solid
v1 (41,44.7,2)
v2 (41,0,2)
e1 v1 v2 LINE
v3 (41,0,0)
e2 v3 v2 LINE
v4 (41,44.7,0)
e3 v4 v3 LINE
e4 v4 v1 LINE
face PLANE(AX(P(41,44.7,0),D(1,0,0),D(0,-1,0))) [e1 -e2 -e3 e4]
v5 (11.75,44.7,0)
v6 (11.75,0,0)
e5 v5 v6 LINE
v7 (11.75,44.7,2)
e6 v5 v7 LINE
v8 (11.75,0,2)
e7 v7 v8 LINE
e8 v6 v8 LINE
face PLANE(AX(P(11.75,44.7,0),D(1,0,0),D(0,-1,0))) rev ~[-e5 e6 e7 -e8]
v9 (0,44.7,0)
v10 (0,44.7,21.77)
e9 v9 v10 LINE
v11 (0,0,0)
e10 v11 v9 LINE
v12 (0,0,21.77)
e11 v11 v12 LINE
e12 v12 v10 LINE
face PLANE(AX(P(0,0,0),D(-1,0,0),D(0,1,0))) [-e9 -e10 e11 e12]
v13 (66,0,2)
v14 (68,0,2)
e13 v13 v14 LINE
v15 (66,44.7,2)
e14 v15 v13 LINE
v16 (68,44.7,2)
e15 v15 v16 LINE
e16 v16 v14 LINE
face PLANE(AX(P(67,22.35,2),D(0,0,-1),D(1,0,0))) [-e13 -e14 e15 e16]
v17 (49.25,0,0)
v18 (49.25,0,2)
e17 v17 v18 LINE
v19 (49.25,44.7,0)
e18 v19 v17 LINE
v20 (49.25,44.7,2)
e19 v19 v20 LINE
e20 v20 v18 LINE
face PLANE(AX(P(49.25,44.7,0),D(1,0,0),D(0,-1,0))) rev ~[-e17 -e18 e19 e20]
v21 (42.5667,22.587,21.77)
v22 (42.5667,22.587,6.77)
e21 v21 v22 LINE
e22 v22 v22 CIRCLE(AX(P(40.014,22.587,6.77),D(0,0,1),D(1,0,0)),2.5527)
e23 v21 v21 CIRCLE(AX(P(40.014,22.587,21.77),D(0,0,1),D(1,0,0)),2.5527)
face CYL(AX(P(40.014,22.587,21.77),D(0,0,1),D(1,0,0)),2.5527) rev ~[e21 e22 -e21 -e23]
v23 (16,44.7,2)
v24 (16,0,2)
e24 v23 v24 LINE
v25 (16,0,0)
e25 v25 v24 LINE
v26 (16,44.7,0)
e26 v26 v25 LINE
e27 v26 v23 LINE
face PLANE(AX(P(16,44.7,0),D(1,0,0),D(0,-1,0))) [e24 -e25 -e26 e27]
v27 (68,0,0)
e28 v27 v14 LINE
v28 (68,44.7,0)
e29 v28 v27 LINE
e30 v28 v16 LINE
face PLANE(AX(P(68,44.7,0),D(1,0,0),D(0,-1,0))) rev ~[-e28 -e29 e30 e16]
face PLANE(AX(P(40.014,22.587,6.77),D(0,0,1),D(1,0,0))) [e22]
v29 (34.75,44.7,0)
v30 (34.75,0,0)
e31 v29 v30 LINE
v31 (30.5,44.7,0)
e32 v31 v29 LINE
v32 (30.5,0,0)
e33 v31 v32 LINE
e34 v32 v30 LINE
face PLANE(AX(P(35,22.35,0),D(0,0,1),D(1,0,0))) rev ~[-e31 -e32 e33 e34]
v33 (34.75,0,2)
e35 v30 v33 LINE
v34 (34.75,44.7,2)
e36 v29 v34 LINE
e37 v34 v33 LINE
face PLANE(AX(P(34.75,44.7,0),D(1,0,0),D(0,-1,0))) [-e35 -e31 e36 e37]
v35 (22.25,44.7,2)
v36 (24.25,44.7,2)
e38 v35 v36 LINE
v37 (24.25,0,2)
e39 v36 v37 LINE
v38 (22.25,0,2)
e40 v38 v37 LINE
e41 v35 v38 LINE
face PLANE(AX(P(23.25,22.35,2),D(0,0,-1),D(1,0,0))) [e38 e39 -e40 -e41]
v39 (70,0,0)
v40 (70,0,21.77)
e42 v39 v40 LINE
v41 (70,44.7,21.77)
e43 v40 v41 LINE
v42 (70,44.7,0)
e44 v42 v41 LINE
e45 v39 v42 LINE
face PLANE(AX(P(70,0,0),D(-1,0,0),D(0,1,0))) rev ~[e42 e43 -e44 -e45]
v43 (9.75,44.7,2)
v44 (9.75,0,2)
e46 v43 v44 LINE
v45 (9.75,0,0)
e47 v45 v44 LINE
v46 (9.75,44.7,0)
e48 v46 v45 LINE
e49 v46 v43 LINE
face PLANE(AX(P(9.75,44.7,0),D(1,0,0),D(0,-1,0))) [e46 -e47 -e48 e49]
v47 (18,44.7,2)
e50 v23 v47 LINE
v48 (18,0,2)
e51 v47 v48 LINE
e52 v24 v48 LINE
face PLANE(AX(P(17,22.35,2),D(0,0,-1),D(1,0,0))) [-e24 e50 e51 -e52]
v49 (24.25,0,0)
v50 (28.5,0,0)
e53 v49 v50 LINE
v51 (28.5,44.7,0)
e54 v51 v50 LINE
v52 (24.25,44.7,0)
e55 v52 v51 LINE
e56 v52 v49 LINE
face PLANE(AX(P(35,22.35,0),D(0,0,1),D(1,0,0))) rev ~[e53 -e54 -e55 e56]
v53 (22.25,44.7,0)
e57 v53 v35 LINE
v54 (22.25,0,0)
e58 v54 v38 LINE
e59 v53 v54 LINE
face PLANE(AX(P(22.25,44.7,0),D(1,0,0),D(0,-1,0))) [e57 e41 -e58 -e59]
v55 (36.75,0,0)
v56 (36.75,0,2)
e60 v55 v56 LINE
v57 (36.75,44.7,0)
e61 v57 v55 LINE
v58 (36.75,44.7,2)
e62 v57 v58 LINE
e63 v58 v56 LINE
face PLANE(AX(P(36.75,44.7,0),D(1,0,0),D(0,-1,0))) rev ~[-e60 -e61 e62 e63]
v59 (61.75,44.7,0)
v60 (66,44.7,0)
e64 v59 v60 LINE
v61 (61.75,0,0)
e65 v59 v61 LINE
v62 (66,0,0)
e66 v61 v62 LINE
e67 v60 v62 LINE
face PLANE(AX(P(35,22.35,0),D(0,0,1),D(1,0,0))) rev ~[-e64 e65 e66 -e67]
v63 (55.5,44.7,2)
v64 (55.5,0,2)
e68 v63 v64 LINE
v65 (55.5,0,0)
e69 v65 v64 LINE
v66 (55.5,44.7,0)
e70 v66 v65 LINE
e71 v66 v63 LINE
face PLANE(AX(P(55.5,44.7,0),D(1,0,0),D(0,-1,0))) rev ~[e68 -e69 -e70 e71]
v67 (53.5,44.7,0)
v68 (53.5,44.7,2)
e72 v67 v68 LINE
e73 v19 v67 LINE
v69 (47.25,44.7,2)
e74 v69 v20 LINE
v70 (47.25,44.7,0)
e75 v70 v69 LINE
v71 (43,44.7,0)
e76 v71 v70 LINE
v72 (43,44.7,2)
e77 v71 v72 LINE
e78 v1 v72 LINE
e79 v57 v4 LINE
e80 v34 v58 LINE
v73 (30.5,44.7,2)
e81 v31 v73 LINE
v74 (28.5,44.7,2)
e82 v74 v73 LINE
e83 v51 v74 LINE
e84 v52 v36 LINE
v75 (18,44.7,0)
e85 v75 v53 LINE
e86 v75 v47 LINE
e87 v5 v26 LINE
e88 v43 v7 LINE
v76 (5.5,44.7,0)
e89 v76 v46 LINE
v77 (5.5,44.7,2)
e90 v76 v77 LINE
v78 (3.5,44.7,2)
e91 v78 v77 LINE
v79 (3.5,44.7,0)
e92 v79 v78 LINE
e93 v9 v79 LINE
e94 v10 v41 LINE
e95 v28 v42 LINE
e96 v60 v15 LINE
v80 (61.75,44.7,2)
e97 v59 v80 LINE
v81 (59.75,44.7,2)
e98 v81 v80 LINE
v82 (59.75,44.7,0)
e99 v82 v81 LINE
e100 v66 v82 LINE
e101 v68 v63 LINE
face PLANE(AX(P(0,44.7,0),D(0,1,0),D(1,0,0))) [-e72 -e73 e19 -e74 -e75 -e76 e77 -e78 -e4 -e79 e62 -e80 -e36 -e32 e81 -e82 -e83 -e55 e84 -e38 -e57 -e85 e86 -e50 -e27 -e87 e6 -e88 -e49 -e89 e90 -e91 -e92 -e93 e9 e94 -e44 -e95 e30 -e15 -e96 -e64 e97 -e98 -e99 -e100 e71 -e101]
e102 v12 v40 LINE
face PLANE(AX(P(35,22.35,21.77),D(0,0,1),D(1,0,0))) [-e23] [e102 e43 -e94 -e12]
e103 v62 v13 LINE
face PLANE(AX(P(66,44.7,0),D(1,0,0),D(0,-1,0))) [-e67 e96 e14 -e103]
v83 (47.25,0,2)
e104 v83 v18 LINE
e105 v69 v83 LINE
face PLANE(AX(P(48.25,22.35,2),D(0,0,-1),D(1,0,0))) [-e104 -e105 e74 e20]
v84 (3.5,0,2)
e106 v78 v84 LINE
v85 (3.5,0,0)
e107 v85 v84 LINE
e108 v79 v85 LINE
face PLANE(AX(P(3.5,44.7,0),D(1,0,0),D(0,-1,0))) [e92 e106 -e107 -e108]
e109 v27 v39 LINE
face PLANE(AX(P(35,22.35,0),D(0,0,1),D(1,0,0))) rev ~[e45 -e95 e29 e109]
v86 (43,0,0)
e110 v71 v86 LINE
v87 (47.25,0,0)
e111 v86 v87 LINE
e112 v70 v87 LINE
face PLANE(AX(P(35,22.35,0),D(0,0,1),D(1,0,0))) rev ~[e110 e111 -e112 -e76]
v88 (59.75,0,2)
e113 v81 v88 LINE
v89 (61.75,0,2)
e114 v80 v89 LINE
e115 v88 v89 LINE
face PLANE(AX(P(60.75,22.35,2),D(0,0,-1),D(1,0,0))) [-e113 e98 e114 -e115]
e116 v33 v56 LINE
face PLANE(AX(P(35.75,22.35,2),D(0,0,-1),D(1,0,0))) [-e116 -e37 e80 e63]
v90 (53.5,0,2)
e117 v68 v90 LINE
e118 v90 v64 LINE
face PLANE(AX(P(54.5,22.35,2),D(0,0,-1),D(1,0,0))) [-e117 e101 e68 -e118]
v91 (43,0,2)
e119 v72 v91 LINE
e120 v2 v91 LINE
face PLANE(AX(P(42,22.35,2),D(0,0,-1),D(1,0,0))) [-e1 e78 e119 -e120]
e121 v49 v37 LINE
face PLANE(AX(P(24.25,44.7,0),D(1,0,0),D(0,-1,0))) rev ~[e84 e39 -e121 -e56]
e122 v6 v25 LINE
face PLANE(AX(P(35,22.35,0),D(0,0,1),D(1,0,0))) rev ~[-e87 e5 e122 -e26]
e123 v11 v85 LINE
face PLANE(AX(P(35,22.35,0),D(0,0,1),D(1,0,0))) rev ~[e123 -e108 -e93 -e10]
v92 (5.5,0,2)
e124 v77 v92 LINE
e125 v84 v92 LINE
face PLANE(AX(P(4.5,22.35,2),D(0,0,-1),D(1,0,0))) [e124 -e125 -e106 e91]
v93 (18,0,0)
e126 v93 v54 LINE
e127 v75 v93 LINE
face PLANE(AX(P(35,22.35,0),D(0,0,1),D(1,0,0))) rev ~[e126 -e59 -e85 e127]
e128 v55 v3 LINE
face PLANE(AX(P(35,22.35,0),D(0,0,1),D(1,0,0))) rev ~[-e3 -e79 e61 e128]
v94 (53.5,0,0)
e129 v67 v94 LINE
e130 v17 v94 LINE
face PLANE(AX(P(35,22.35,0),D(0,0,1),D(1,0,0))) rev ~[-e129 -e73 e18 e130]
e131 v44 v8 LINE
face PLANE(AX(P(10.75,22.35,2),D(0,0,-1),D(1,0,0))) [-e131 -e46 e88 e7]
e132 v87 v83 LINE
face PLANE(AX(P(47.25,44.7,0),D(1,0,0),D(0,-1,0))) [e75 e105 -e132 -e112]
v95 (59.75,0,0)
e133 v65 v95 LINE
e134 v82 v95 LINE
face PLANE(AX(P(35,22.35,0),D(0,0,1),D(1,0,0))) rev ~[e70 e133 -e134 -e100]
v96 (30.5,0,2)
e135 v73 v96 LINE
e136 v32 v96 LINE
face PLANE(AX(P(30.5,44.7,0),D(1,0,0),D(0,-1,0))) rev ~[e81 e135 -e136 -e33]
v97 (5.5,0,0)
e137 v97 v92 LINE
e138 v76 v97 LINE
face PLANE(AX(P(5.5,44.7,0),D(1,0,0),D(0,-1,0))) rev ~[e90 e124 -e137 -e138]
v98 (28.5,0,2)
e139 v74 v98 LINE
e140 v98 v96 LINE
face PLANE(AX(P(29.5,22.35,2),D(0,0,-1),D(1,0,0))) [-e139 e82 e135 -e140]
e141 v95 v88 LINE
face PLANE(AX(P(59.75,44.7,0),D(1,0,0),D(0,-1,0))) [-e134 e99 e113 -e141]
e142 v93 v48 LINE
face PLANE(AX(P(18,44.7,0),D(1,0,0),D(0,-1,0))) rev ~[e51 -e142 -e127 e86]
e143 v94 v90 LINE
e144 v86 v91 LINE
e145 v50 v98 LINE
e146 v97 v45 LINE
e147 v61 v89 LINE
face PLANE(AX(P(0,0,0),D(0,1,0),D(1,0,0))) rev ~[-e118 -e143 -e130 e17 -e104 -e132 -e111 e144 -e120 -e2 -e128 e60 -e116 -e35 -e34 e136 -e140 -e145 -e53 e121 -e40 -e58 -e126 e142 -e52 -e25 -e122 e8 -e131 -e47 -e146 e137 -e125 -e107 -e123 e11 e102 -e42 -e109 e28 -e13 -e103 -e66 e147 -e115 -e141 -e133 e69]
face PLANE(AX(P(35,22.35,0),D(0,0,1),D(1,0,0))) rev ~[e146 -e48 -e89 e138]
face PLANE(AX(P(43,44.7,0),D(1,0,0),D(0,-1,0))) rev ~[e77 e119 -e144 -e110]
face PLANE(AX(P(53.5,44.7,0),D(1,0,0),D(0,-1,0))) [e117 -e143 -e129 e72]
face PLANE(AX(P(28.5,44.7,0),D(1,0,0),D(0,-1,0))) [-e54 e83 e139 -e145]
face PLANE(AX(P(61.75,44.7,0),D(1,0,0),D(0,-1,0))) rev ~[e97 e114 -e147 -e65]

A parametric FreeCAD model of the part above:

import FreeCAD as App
import Part
import Sketcher
Q = App.Units.Quantity


def add_polygon(sketch, points):
    """Adds a closed chain of lines whose ends are joined by coincident constraints."""
    first, n = sketch.GeometryCount, len(points)
    for a, b in zip(points, points[1:] + points[:1]):
        sketch.addGeometry(Part.LineSegment(App.Vector(*a, 0), App.Vector(*b, 0)), False)
    for i in range(n):
        sketch.addConstraint(Sketcher.Constraint("Coincident", first + i, 2, first + (i + 1) % n, 1))

doc = App.newDocument("Part")
body = doc.addObject("PartDesign::Body", "Body")

# Sketch on XY plane
sketch1 = body.newObject("Sketcher::SketchObject", "Sketch")
sketch1.AttachmentSupport = (doc.getObject("XY_Plane"), [""])
sketch1.MapMode = "FlatFace"
add_polygon(sketch1, [(0, 45), (0, 0), (70, 0), (70, 45)])  # lines 0-3
sketch1.addConstraint([
    Sketcher.Constraint("Vertical", 0),
    Sketcher.Constraint("Horizontal", 1),
    Sketcher.Constraint("Vertical", 2),
    Sketcher.Constraint("Horizontal", 3),
    Sketcher.Constraint("Coincident", 0, 2, -1, 1),
    Sketcher.Constraint("DistanceX", 1, 1, 1, 2, Q("70 mm")),
    Sketcher.Constraint("DistanceY", 0, 2, 0, 1, Q("44.7 mm")),
])
pad1 = body.newObject("PartDesign::Pad", "Pad")
pad1.Profile = sketch1
pad1.Length = 21.77

# Sketch on XY plane
sketch2 = body.newObject("Sketcher::SketchObject", "Sketch001")
sketch2.AttachmentSupport = (doc.getObject("XY_Plane"), [""])
sketch2.MapMode = "FlatFace"
sketch2.AttachmentOffset = App.Placement(App.Vector(0, 0, 21.77), App.Rotation())
sketch2.addGeometry(Part.Circle(App.Vector(40, 22.6, 0), App.Vector(0, 0, 1), 2.6), False)
sketch2.addConstraint([
    Sketcher.Constraint("Diameter", 0, Q("5.1054 mm")),
    Sketcher.Constraint("DistanceX", -1, 1, 0, 3, Q("40.014 mm")),
    Sketcher.Constraint("DistanceY", -1, 1, 0, 3, Q("22.587 mm")),
])
pocket1 = body.newObject("PartDesign::Pocket", "Pocket")
pocket1.Profile = sketch2
pocket1.Length = 15

# Sketch on XY plane
sketch3 = body.newObject("Sketcher::SketchObject", "Sketch002")
sketch3.AttachmentSupport = (doc.getObject("XY_Plane"), [""])
sketch3.MapMode = "FlatFace"
add_polygon(sketch3, [(66, 0), (66, 44.7), (68, 44.7), (68, 0)])  # lines 0-3
add_polygon(sketch3, [(59.8, 0), (59.8, 44.7), (61.8, 44.7), (61.8, 0)])  # lines 4-7
add_polygon(sketch3, [(53.5, 0), (53.5, 44.7), (55.5, 44.7), (55.5, 0)])  # lines 8-11
add_polygon(sketch3, [(47.2, 0), (47.2, 44.7), (49.2, 44.7), (49.2, 0)])  # lines 12-15
add_polygon(sketch3, [(41, 0), (41, 44.7), (43, 44.7), (43, 0)])  # lines 16-19
add_polygon(sketch3, [(34.8, 0), (34.8, 44.7), (36.8, 44.7), (36.8, 0)])  # lines 20-23
add_polygon(sketch3, [(28.5, 0), (28.5, 44.7), (30.5, 44.7), (30.5, 0)])  # lines 24-27
add_polygon(sketch3, [(22.2, 0), (22.2, 44.7), (24.2, 44.7), (24.2, 0)])  # lines 28-31
add_polygon(sketch3, [(16, 0), (16, 44.7), (18, 44.7), (18, 0)])  # lines 32-35
add_polygon(sketch3, [(9.8, 0), (9.8, 44.7), (11.8, 44.7), (11.8, 0)])  # lines 36-39
add_polygon(sketch3, [(3.5, 0), (3.5, 44.7), (5.5, 44.7), (5.5, 0)])  # lines 40-43
add_polygon(sketch3, [(-2.8, 0), (-2.8, 44.7), (-0.8, 44.7), (-0.8, 0)])  # lines 44-47
sketch3.addConstraint([
    Sketcher.Constraint("Vertical", 0),
    Sketcher.Constraint("Horizontal", 1),
    Sketcher.Constraint("Vertical", 2),
    Sketcher.Constraint("Horizontal", 3),
    Sketcher.Constraint("Vertical", 4),
    Sketcher.Constraint("Horizontal", 5),
    Sketcher.Constraint("Vertical", 6),
    Sketcher.Constraint("Horizontal", 7),
    Sketcher.Constraint("Vertical", 8),
    Sketcher.Constraint("Horizontal", 9),
    Sketcher.Constraint("Vertical", 10),
    Sketcher.Constraint("Horizontal", 11),
    Sketcher.Constraint("Vertical", 12),
    Sketcher.Constraint("Horizontal", 13),
    Sketcher.Constraint("Vertical", 14),
    Sketcher.Constraint("Horizontal", 15),
    Sketcher.Constraint("Vertical", 16),
    Sketcher.Constraint("Horizontal", 17),
    Sketcher.Constraint("Vertical", 18),
    Sketcher.Constraint("Horizontal", 19),
    Sketcher.Constraint("Vertical", 20),
    Sketcher.Constraint("Horizontal", 21),
    Sketcher.Constraint("Vertical", 22),
    Sketcher.Constraint("Horizontal", 23),
    Sketcher.Constraint("Vertical", 24),
    Sketcher.Constraint("Horizontal", 25),
    Sketcher.Constraint("Vertical", 26),
    Sketcher.Constraint("Horizontal", 27),
    Sketcher.Constraint("Vertical", 28),
    Sketcher.Constraint("Horizontal", 29),
    Sketcher.Constraint("Vertical", 30),
    Sketcher.Constraint("Horizontal", 31),
    Sketcher.Constraint("Vertical", 32),
    Sketcher.Constraint("Horizontal", 33),
    Sketcher.Constraint("Vertical", 34),
    Sketcher.Constraint("Horizontal", 35),
    Sketcher.Constraint("Vertical", 36),
    Sketcher.Constraint("Horizontal", 37),
    Sketcher.Constraint("Vertical", 38),
    Sketcher.Constraint("Horizontal", 39),
    Sketcher.Constraint("Vertical", 40),
    Sketcher.Constraint("Horizontal", 41),
    Sketcher.Constraint("Vertical", 42),
    Sketcher.Constraint("Horizontal", 43),
    Sketcher.Constraint("Vertical", 44),
    Sketcher.Constraint("Horizontal", 45),
    Sketcher.Constraint("Vertical", 46),
    Sketcher.Constraint("Horizontal", 47),
    Sketcher.Constraint("PointOnObject", 2, 2, -1),
    Sketcher.Constraint("PointOnObject", 6, 2, -1),
    Sketcher.Constraint("PointOnObject", 10, 2, -1),
    Sketcher.Constraint("PointOnObject", 14, 2, -1),
    Sketcher.Constraint("PointOnObject", 18, 2, -1),
    Sketcher.Constraint("PointOnObject", 22, 2, -1),
    Sketcher.Constraint("PointOnObject", 26, 2, -1),
    Sketcher.Constraint("PointOnObject", 30, 2, -1),
    Sketcher.Constraint("PointOnObject", 34, 2, -1),
    Sketcher.Constraint("PointOnObject", 38, 2, -1),
    Sketcher.Constraint("PointOnObject", 42, 2, -1),
    Sketcher.Constraint("PointOnObject", 46, 2, -1),
    Sketcher.Constraint("Horizontal", 1, 2, 4, 2),
    Sketcher.Constraint("Horizontal", 5, 2, 8, 2),
    Sketcher.Constraint("Horizontal", 9, 2, 12, 2),
    Sketcher.Constraint("Horizontal", 13, 2, 16, 2),
    Sketcher.Constraint("Horizontal", 17, 2, 20, 2),
    Sketcher.Constraint("Horizontal", 21, 2, 24, 2),
    Sketcher.Constraint("Horizontal", 25, 2, 28, 2),
    Sketcher.Constraint("Horizontal", 29, 2, 32, 2),
    Sketcher.Constraint("Horizontal", 33, 2, 36, 2),
    Sketcher.Constraint("Horizontal", 37, 2, 40, 2),
    Sketcher.Constraint("Horizontal", 41, 2, 44, 2),
    Sketcher.Constraint("Equal", 3, 5),
    Sketcher.Constraint("Equal", 7, 9),
    Sketcher.Constraint("Equal", 11, 13),
    Sketcher.Constraint("Equal", 15, 17),
    Sketcher.Constraint("Equal", 19, 21),
    Sketcher.Constraint("Equal", 23, 25),
    Sketcher.Constraint("Equal", 27, 29),
    Sketcher.Constraint("Equal", 31, 33),
    Sketcher.Constraint("Equal", 35, 37),
    Sketcher.Constraint("Equal", 39, 41),
    Sketcher.Constraint("Equal", 43, 45),
    Sketcher.Constraint("DistanceX", 1, 1, 1, 2, Q("2 mm")),
    Sketcher.Constraint("DistanceY", 0, 1, 0, 2, Q("44.7 mm")),
    Sketcher.Constraint("DistanceX", -1, 1, 0, 2, Q("66 mm")),
    Sketcher.Constraint("DistanceX", -1, 1, 16, 2, Q("41 mm")),
    Sketcher.Constraint("DistanceX", -1, 1, 32, 2, Q("16 mm")),
    Sketcher.Constraint("DistanceX", -1, 1, 8, 2, Q("53.5 mm")),
    Sketcher.Constraint("DistanceX", -1, 1, 24, 2, Q("28.5 mm")),
    Sketcher.Constraint("DistanceX", -1, 1, 40, 2, Q("3.5 mm")),
    Sketcher.Constraint("DistanceX", 12, 2, 4, 2, Q("12.5 mm")),
    Sketcher.Constraint("DistanceX", 20, 2, 12, 2, Q("12.5 mm")),
    Sketcher.Constraint("DistanceX", 28, 2, 20, 2, Q("12.5 mm")),
    Sketcher.Constraint("DistanceX", 36, 2, 28, 2, Q("12.5 mm")),
    Sketcher.Constraint("DistanceX", 44, 2, 36, 2, Q("12.5 mm")),
    Sketcher.Constraint("DistanceX", -1, 1, 4, 2, Q("59.75 mm")),
])
pocket2 = body.newObject("PartDesign::Pocket", "Pocket001")
pocket2.Profile = sketch3
pocket2.Length = 2
pocket2.Reversed = True

doc.recompute()
